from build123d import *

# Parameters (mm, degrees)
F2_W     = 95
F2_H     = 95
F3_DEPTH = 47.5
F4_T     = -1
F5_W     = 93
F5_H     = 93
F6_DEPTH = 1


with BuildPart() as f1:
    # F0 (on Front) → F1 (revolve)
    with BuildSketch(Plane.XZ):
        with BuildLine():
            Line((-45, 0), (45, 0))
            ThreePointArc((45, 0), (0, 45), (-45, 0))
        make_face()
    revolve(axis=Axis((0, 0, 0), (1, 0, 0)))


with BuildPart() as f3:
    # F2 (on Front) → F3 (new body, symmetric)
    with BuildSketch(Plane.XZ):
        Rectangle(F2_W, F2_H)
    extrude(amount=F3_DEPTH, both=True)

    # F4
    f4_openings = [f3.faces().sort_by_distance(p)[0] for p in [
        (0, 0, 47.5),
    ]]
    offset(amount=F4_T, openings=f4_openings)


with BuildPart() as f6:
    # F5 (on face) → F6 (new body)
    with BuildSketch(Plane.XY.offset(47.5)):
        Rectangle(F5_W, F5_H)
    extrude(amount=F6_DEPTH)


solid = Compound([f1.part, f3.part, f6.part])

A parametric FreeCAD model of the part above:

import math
import FreeCAD as App
import Part
import Sketcher
from FreeCAD import Vector


def faces_at(feature, points):
    """Names of the faces that lie closest to the given points."""
    faces = feature.Shape.Faces
    near = lambda p: min(range(len(faces)), key=lambda i: faces[i].distToShape(Part.Vertex(*p))[0])
    return sorted({f"Face{near(p) + 1}" for p in points})


def add_polygon(sketch, points):
    """Adds a closed chain of lines whose ends are joined by coincident constraints."""
    first, n = sketch.GeometryCount, len(points)
    for a, b in zip(points, points[1:] + points[:1]):
        sketch.addGeometry(Part.LineSegment(App.Vector(*a, 0), App.Vector(*b, 0)), False)
    for i in range(n):
        sketch.addConstraint(Sketcher.Constraint("Coincident", first + i, 2, first + (i + 1) % n, 1))

doc = App.newDocument("Part")
body = doc.addObject("PartDesign::Body", "Body")

# Sketch on XZ plane
sketch1 = doc.addObject("Sketcher::SketchObject", "Sketch")
body.addObject(sketch1)
sketch1.AttachmentSupport = (doc.XZ_Plane, [""])
sketch1.MapMode = "FlatFace"
sketch1.addGeometry([
    Part.LineSegment(Vector(-45, 0, 0), Vector(45, 0, 0)),
    Part.ArcOfCircle(Part.Circle(Vector(0, 0, 0), Vector(0, 0, 1), 45), math.radians(0), math.radians(180)),
], False)
sketch1.addConstraint([
    Sketcher.Constraint("Coincident", 0, 1, 1, 2),
    Sketcher.Constraint("Coincident", 1, 1, 0, 2),
    Sketcher.Constraint("Horizontal", 0),
    Sketcher.Constraint("Coincident", 1, 3, -1, 1),
    Sketcher.Constraint("PointOnObject", 0, 1, -1),
    Sketcher.Constraint("Radius", 1, 45.0),
])
revolution = doc.addObject("PartDesign::Revolution", "Revolution")
body.addObject(revolution)
revolution.Profile = sketch1
revolution.ReferenceAxis = (sketch1, ["H_Axis"])
revolution.Angle = 360
body2 = doc.addObject("PartDesign::Body", "Body001")

# Sketch on XZ plane
sketch2 = doc.addObject("Sketcher::SketchObject", "Sketch001")
body2.addObject(sketch2)
sketch2.AttachmentSupport = (doc.getObject("XZ_Plane001"), [""])
sketch2.MapMode = "FlatFace"
add_polygon(sketch2, [(-48, 48), (-48, -48), (48, -48), (48, 48)])  # lines 0-3
sketch2.addConstraint([
    Sketcher.Constraint("Vertical", 0),
    Sketcher.Constraint("Horizontal", 1),
    Sketcher.Constraint("Vertical", 2),
    Sketcher.Constraint("Horizontal", 3),
    Sketcher.Constraint("Symmetric", 0, 2, 2, 2, -1, 1),
    Sketcher.Constraint("Equal", 3, 0),
    Sketcher.Constraint("DistanceX", 1, 1, 1, 2, 95.0),
])
pad1 = doc.addObject("PartDesign::Pad", "Pad")
body2.addObject(pad1)
pad1.Profile = sketch2
pad1.Length = 95
pad1.Midplane = True
doc.recompute()

thickness = doc.addObject("PartDesign::Thickness", "Thickness")
body2.addObject(thickness)
thickness.Base = (pad1, faces_at(pad1, [(0, 0, 47.5)]))
thickness.Value = 1
thickness.Reversed = True
thickness.Join = "Arc"
body3 = doc.addObject("PartDesign::Body", "Body002")

# Sketch on XY plane
sketch3 = doc.addObject("Sketcher::SketchObject", "Sketch002")
body3.addObject(sketch3)
sketch3.AttachmentSupport = (doc.getObject("XY_Plane002"), [""])
sketch3.MapMode = "FlatFace"
sketch3.AttachmentOffset = App.Placement(Vector(0, 0, 47.5), App.Rotation())
add_polygon(sketch3, [(-46, 46), (-46, -46), (46, -46), (46, 46)])  # lines 0-3
sketch3.addConstraint([
    Sketcher.Constraint("Vertical", 0),
    Sketcher.Constraint("Horizontal", 1),
    Sketcher.Constraint("Vertical", 2),
    Sketcher.Constraint("Horizontal", 3),
    Sketcher.Constraint("Symmetric", 0, 2, 2, 2, -1, 1),
    Sketcher.Constraint("Equal", 3, 0),
    Sketcher.Constraint("DistanceX", 1, 1, 1, 2, 93.0),
])
pad2 = doc.addObject("PartDesign::Pad", "Pad001")
body3.addObject(pad2)
pad2.Profile = sketch3
pad2.Length = 1

doc.recompute()
